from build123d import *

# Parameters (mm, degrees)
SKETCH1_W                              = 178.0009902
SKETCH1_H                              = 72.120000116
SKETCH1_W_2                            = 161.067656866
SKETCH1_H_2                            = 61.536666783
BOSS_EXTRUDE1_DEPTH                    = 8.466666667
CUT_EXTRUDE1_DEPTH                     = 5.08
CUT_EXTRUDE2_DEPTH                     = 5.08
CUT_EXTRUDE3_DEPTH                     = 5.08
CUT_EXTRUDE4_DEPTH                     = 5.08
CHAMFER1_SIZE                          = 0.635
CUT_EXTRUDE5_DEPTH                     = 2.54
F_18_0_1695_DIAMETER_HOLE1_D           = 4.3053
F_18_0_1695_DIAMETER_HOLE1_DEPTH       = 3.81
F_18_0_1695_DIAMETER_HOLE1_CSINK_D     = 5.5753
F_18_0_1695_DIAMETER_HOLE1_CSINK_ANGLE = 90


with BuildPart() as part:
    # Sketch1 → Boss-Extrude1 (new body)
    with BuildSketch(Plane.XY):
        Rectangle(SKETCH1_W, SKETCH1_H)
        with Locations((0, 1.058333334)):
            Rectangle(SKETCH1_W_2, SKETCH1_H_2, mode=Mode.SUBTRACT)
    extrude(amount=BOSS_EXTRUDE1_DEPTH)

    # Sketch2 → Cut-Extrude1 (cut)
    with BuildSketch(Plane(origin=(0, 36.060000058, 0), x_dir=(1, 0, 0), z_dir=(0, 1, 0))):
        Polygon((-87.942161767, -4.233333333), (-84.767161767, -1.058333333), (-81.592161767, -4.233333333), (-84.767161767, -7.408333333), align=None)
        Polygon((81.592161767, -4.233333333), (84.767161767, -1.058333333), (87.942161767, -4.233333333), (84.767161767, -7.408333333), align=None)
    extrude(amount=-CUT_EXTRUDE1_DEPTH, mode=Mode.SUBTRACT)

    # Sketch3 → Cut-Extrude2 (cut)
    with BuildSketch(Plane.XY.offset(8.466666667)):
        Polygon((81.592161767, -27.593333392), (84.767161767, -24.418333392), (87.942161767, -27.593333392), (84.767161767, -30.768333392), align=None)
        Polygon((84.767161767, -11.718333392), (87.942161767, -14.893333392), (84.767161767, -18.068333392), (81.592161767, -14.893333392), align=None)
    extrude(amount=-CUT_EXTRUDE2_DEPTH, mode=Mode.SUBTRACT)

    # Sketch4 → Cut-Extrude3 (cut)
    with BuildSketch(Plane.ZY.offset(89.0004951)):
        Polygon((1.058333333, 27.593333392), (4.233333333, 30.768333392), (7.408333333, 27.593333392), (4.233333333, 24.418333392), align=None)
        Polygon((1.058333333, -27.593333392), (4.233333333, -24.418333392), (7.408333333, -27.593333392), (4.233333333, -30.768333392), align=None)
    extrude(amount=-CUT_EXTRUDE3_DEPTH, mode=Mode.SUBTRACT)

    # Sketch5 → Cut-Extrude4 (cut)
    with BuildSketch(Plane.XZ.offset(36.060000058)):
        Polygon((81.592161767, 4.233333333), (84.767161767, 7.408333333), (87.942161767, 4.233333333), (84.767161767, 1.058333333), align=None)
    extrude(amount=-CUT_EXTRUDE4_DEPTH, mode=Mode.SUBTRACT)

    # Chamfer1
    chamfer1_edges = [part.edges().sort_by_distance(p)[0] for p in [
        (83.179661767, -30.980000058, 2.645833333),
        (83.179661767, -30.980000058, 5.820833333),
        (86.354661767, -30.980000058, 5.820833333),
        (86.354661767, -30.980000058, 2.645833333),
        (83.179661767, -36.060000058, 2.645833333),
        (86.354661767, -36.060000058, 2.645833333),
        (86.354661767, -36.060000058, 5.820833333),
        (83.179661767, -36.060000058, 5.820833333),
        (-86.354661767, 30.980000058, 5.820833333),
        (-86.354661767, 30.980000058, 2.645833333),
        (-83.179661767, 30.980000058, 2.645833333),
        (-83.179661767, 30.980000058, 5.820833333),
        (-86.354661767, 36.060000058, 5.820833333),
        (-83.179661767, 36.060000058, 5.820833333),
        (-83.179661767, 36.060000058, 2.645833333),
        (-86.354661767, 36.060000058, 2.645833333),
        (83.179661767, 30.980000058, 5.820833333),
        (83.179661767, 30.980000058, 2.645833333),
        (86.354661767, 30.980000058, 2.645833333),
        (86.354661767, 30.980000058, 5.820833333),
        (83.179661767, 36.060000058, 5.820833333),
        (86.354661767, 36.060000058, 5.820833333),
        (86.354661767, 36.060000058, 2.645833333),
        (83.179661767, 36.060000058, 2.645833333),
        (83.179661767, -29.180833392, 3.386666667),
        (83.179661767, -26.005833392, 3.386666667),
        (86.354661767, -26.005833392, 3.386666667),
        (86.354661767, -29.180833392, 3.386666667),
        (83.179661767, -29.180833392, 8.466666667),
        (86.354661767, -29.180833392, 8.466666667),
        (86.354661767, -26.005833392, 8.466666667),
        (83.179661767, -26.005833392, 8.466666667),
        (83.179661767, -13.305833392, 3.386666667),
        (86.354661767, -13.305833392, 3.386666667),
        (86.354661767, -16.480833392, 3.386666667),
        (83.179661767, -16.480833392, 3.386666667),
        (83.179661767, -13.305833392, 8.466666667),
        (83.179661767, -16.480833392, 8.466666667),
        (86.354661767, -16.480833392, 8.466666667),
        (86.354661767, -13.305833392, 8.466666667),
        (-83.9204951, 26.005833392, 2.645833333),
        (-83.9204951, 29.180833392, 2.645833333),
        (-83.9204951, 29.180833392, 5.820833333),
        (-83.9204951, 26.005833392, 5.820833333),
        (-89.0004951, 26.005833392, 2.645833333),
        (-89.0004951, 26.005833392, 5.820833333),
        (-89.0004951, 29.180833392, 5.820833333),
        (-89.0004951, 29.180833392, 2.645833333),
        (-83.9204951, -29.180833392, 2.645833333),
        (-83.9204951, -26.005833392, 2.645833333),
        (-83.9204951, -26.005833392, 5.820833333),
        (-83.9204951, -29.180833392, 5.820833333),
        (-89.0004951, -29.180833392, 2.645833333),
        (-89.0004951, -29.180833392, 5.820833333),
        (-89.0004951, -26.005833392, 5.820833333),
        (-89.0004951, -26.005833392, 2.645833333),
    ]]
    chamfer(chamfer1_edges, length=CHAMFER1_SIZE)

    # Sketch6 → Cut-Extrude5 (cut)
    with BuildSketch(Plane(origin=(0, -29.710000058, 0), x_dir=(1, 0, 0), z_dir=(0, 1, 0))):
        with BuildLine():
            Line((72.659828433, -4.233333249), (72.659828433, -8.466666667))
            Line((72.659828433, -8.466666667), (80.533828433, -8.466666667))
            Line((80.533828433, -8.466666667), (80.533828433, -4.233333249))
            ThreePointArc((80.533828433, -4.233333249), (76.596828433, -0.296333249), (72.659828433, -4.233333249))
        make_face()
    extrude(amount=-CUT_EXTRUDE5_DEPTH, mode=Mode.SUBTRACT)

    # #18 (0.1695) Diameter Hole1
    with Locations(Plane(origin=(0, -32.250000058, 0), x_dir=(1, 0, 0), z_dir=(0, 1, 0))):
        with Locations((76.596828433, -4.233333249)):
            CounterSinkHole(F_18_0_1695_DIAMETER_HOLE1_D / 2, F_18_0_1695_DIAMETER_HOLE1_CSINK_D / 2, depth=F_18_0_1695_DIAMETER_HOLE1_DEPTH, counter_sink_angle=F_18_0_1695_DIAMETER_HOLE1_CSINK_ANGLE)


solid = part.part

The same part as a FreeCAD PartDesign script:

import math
import FreeCAD as App
import Part
import Sketcher

V = App.Vector
Q = App.Units.Quantity


def edges_at(feature, points):
    """Names of the edges that pass closest to the given points."""
    edges = feature.Shape.Edges
    near = lambda p: min(range(len(edges)), key=lambda i: edges[i].distToShape(Part.Vertex(*p))[0])
    return sorted({f"Edge{near(p) + 1}" for p in points})


def add_polygon(sketch, points):
    """Adds a closed chain of lines whose ends are joined by coincident constraints."""
    first, n = sketch.GeometryCount, len(points)
    for a, b in zip(points, points[1:] + points[:1]):
        sketch.addGeometry(Part.LineSegment(App.Vector(*a, 0), App.Vector(*b, 0)), False)
    for i in range(n):
        sketch.addConstraint(Sketcher.Constraint("Coincident", first + i, 2, first + (i + 1) % n, 1))

doc = App.newDocument("Part")
params = doc.addObject("Spreadsheet::Sheet", "Params")
for row, (alias, value) in enumerate([
    ("pad1_length", "8.466667 mm"),
    ("pocket1_length", "0.2 in"),
    ("pocket2_length", "0.2 in"),
    ("pocket3_length", "0.2 in"),
    ("pocket4_length", "0.2 in"),
    ("chamfer_size", "0.025 in"),
    ("sketch6_radius", "0.155 in"),
    ("pocket5_length", "0.1 in"),
    ("hole_diameter", "0.1695 in"),
    ("hole_depth", "0.15 in"),
    ("hole_csink_diameter", "0.2195 in"),
], start=1):
    params.set(f"A{row}", alias)
    params.set(f"B{row}", "=" + value)
    params.setAlias(f"B{row}", alias)

body = doc.addObject("PartDesign::Body", "Body")

# Sketch on XY plane
sketch1 = body.newObject("Sketcher::SketchObject", "Sketch")
sketch1.AttachmentSupport = (doc.getObject("XY_Plane"), [""])
sketch1.MapMode = "FlatFace"
add_polygon(sketch1, [(-89, 36), (-89, -36), (89, -36), (89, 36)])  # lines 0-3
add_polygon(sketch1, [(81, -30), (-81, -30), (-81, 32), (81, 32)])  # lines 4-7
sketch1.addConstraint([
    Sketcher.Constraint("Vertical", 0),
    Sketcher.Constraint("Horizontal", 1),
    Sketcher.Constraint("Vertical", 2),
    Sketcher.Constraint("Horizontal", 3),
    Sketcher.Constraint("Horizontal", 4),
    Sketcher.Constraint("Vertical", 5),
    Sketcher.Constraint("Horizontal", 6),
    Sketcher.Constraint("Vertical", 7),
    Sketcher.Constraint("Symmetric", 0, 2, 2, 2, -1, 1),
    Sketcher.Constraint("DistanceY", 0, 2, 4, 2, Q("0.25 in")),
    Sketcher.Constraint("DistanceY", 0, 2, 0, 1, 72.12),
    Sketcher.Constraint("DistanceX", 1, 1, 1, 2, 178.00099),
    Sketcher.Constraint("DistanceX", 4, 2, 4, 1, 161.067657),
    Sketcher.Constraint("DistanceY", 5, 1, 5, 2, 61.536667),
    Sketcher.Constraint("DistanceX", 4, 2, -1, 1, 80.533828),
])
pad1 = body.newObject("PartDesign::Pad", "Pad")
pad1.Profile = sketch1
pad1.setExpression("Length", "Params.pad1_length")

# Sketch on XZ plane
sketch2 = body.newObject("Sketcher::SketchObject", "Sketch001")
sketch2.AttachmentSupport = (doc.getObject("XZ_Plane"), [""])
sketch2.MapMode = "FlatFace"
sketch2.AttachmentOffset = App.Placement(V(0, 0, -36.06), App.Rotation())
add_polygon(sketch2, [(-84.8, 1.1), (-87.9, 4.2), (-84.8, 7.4), (-81.6, 4.2)])  # lines 0-3
add_polygon(sketch2, [(84.8, 1.1), (81.6, 4.2), (84.8, 7.4), (87.9, 4.2)])  # lines 4-7
sketch2.addConstraint([
    Sketcher.Constraint("Symmetric", 2, 2, 4, 2, -2),
    Sketcher.Constraint("Symmetric", 1, 2, 5, 2, -2),
    Sketcher.Constraint("Symmetric", 0, 2, 6, 2, -2),
    Sketcher.Constraint("Symmetric", 3, 2, 7, 2, -2),
    Sketcher.Constraint("Perpendicular", 0, 1),
    Sketcher.Constraint("Perpendicular", 1, 2),
    Sketcher.Constraint("Perpendicular", 2, 3),
    Sketcher.Constraint("Perpendicular", 3, 4),
    Sketcher.Constraint("Horizontal", 0, 2, 2, 2),
    Sketcher.Constraint("DistanceX", 0, 2, 2, 2, Q("0.25 in")),
    Sketcher.Constraint("DistanceX", 0, 2, -1, 1, 87.942162),
    Sketcher.Constraint("DistanceY", -1, 1, 0, 2, 4.233333),
])
pocket1 = body.newObject("PartDesign::Pocket", "Pocket")
pocket1.Profile = sketch2
pocket1.setExpression("Length", "Params.pocket1_length")
pocket1.Reversed = True

# Sketch on XY plane
sketch3 = body.newObject("Sketcher::SketchObject", "Sketch002")
sketch3.AttachmentSupport = (doc.getObject("XY_Plane"), [""])
sketch3.MapMode = "FlatFace"
sketch3.AttachmentOffset = App.Placement(V(0, 0, 8.466667), App.Rotation())
add_polygon(sketch3, [(84.8, -24.4), (81.6, -27.6), (84.8, -30.8), (87.9, -27.6)])  # lines 0-3
add_polygon(sketch3, [(87.9, -14.9), (84.8, -11.7), (81.6, -14.9), (84.8, -18.1)])  # lines 4-7
sketch3.addConstraint([
    Sketcher.Constraint("Perpendicular", 0, 1),
    Sketcher.Constraint("Perpendicular", 1, 2),
    Sketcher.Constraint("Perpendicular", 2, 3),
    Sketcher.Constraint("Parallel", 3, 4),
    Sketcher.Constraint("Perpendicular", 4, 5),
    Sketcher.Constraint("Perpendicular", 5, 6),
    Sketcher.Constraint("Perpendicular", 6, 7),
    Sketcher.Constraint("Horizontal", 0, 2, 2, 2),
    Sketcher.Constraint("Horizontal", 5, 2, 7, 2),
    Sketcher.Constraint("Vertical", 1, 2, 3, 2),
    Sketcher.Constraint("Vertical", 3, 2, 4, 2),
    Sketcher.Constraint("Vertical", 0, 2, 5, 2),
    Sketcher.Constraint("DistanceY", 3, 2, 4, 2, Q("0.5 in")),
    Sketcher.Constraint("DistanceX", 0, 2, 2, 2, Q("0.25 in")),
    Sketcher.Constraint("DistanceX", -1, 1, 0, 2, 81.592162),
    Sketcher.Constraint("DistanceY", 0, 2, -1, 1, 27.593333),
])
pocket2 = body.newObject("PartDesign::Pocket", "Pocket001")
pocket2.Profile = sketch3
pocket2.setExpression("Length", "Params.pocket2_length")

# Sketch on YZ plane
sketch4 = body.newObject("Sketcher::SketchObject", "Sketch003")
sketch4.AttachmentSupport = (doc.getObject("YZ_Plane"), [""])
sketch4.MapMode = "FlatFace"
sketch4.AttachmentOffset = App.Placement(V(0, 0, -89.000495), App.Rotation())
add_polygon(sketch4, [(30.8, 4.2), (27.6, 1.1), (24.4, 4.2), (27.6, 7.4)])  # lines 0-3
add_polygon(sketch4, [(-24.4, 4.2), (-27.6, 1.1), (-30.8, 4.2), (-27.6, 7.4)])  # lines 4-7
sketch4.addConstraint([
    Sketcher.Constraint("Symmetric", 0, 2, 4, 2, -2),
    Sketcher.Constraint("Symmetric", 3, 2, 5, 2, -2),
    Sketcher.Constraint("Symmetric", 2, 2, 6, 2, -2),
    Sketcher.Constraint("Symmetric", 1, 2, 7, 2, -2),
    Sketcher.Constraint("Perpendicular", 0, 1),
    Sketcher.Constraint("Perpendicular", 1, 2),
    Sketcher.Constraint("Perpendicular", 2, 3),
    Sketcher.Constraint("Perpendicular", 3, 4),
    Sketcher.Constraint("Horizontal", 1, 2, 3, 2),
    Sketcher.Constraint("DistanceY", 0, 2, 2, 2, Q("0.25 in")),
    Sketcher.Constraint("DistanceX", -1, 1, 0, 2, 27.593333),
    Sketcher.Constraint("DistanceY", -1, 1, 0, 2, 1.058333),
])
pocket3 = body.newObject("PartDesign::Pocket", "Pocket002")
pocket3.Profile = sketch4
pocket3.setExpression("Length", "Params.pocket3_length")
pocket3.Reversed = True

# Sketch on XZ plane
sketch5 = body.newObject("Sketcher::SketchObject", "Sketch004")
sketch5.AttachmentSupport = (doc.getObject("XZ_Plane"), [""])
sketch5.MapMode = "FlatFace"
sketch5.AttachmentOffset = App.Placement(V(0, 0, 36.06), App.Rotation())
add_polygon(sketch5, [(84.8, 7.4), (81.6, 4.2), (84.8, 1.1), (87.9, 4.2)])  # lines 0-3
sketch5.addConstraint([
    Sketcher.Constraint("Perpendicular", 0, 1),
    Sketcher.Constraint("Perpendicular", 1, 2),
    Sketcher.Constraint("Perpendicular", 2, 3),
    Sketcher.Constraint("Horizontal", 0, 2, 2, 2),
    Sketcher.Constraint("Vertical", 1, 2, 3, 2),
    Sketcher.Constraint("DistanceX", 0, 2, 2, 2, Q("0.25 in")),
    Sketcher.Constraint("DistanceX", -1, 1, 0, 2, 81.592162),
    Sketcher.Constraint("DistanceY", -1, 1, 0, 2, 4.233333),
])
pocket4 = body.newObject("PartDesign::Pocket", "Pocket003")
pocket4.Profile = sketch5
pocket4.setExpression("Length", "Params.pocket4_length")
doc.recompute()

chamfer = body.newObject("PartDesign::Chamfer", "Chamfer")
chamfer.Base = (pocket4, edges_at(pocket4, [
    (83.18, -30.98, 2.646),
    (83.18, -30.98, 5.821),
    (86.355, -30.98, 5.821),
    (86.355, -30.98, 2.646),
    (83.18, -36.06, 2.646),
    (86.355, -36.06, 2.646),
    (86.355, -36.06, 5.821),
    (83.18, -36.06, 5.821),
    (-86.355, 30.98, 5.821),
    (-86.355, 30.98, 2.646),
    (-83.18, 30.98, 2.646),
    (-83.18, 30.98, 5.821),
    (-86.355, 36.06, 5.821),
    (-83.18, 36.06, 5.821),
    (-83.18, 36.06, 2.646),
    (-86.355, 36.06, 2.646),
    (83.18, 30.98, 5.821),
    (83.18, 30.98, 2.646),
    (86.355, 30.98, 2.646),
    (86.355, 30.98, 5.821),
    (83.18, 36.06, 5.821),
    (86.355, 36.06, 5.821),
    (86.355, 36.06, 2.646),
    (83.18, 36.06, 2.646),
    (83.18, -29.181, 3.387),
    (83.18, -26.006, 3.387),
    (86.355, -26.006, 3.387),
    (86.355, -29.181, 3.387),
    (83.18, -29.181, 8.467),
    (86.355, -29.181, 8.467),
    (86.355, -26.006, 8.467),
    (83.18, -26.006, 8.467),
    (83.18, -13.306, 3.387),
    (86.355, -13.306, 3.387),
    (86.355, -16.481, 3.387),
    (83.18, -16.481, 3.387),
    (83.18, -13.306, 8.467),
    (83.18, -16.481, 8.467),
    (86.355, -16.481, 8.467),
    (86.355, -13.306, 8.467),
    (-83.92, 26.006, 2.646),
    (-83.92, 29.181, 2.646),
    (-83.92, 29.181, 5.821),
    (-83.92, 26.006, 5.821),
    (-89, 26.006, 2.646),
    (-89, 26.006, 5.821),
    (-89, 29.181, 5.821),
    (-89, 29.181, 2.646),
    (-83.92, -29.181, 2.646),
    (-83.92, -26.006, 2.646),
    (-83.92, -26.006, 5.821),
    (-83.92, -29.181, 5.821),
    (-89, -29.181, 2.646),
    (-89, -29.181, 5.821),
    (-89, -26.006, 5.821),
    (-89, -26.006, 2.646),
]))
chamfer.setExpression("Size", "Params.chamfer_size")

# Sketch on XZ plane
sketch6 = body.newObject("Sketcher::SketchObject", "Sketch005")
sketch6.AttachmentSupport = (doc.getObject("XZ_Plane"), [""])
sketch6.MapMode = "FlatFace"
sketch6.AttachmentOffset = App.Placement(V(0, 0, 29.71), App.Rotation())
sketch6.addGeometry([
    Part.LineSegment(V(72.7, 4.2, 0), V(72.7, 8.5, 0)),
    Part.LineSegment(V(72.7, 8.5, 0), V(80.5, 8.5, 0)),
    Part.LineSegment(V(80.5, 8.5, 0), V(80.5, 4.2, 0)),
    Part.ArcOfCircle(Part.Circle(V(76.6, 4.2, 0), V(0, 0, 1), 3.9), math.radians(180), math.radians(360)),
], False)
sketch6.addConstraint([
    Sketcher.Constraint("Coincident", 0, 2, 1, 1),
    Sketcher.Constraint("Coincident", 1, 2, 2, 1),
    Sketcher.Constraint("Tangent", 2, 2, 3, 2),
    Sketcher.Constraint("Tangent", 3, 1, 0, 1),
    Sketcher.Constraint("Vertical", 0),
    Sketcher.Constraint("Horizontal", 1),
    Sketcher.Constraint("Vertical", 2),
    Sketcher.Constraint("Radius", 3, Q("0.155 in")),
    Sketcher.Constraint("DistanceY", 0, 1, 0, 2, 4.233333),
    Sketcher.Constraint("DistanceX", -1, 1, 3, 3, 76.596828),
    Sketcher.Constraint("DistanceY", -1, 1, 3, 3, 4.233333),
])
sketch6.setExpression("Constraints[7]", "Params.sketch6_radius")
pocket5 = body.newObject("PartDesign::Pocket", "Pocket004")
pocket5.Profile = sketch6
pocket5.setExpression("Length", "Params.pocket5_length")
pocket5.Reversed = True

# Sketch on XZ plane
sketch7 = body.newObject("Sketcher::SketchObject", "Sketch006")
sketch7.AttachmentSupport = (doc.getObject("XZ_Plane"), [""])
sketch7.MapMode = "FlatFace"
sketch7.AttachmentOffset = App.Placement(V(0, 0, 32.25), App.Rotation())
sketch7.addGeometry(Part.Circle(V(76.6, 4.2, 0), V(0, 0, 1), 2.2), False)
sketch7.addConstraint([
    Sketcher.Constraint("Diameter", 0, Q("0.1695 in")),
    Sketcher.Constraint("DistanceX", -1, 1, 0, 3, 76.596828),
    Sketcher.Constraint("DistanceY", -1, 1, 0, 3, 4.233333),
])
doc.recompute()
hole = body.newObject("PartDesign::Hole", "Hole")
hole.Profile = sketch7
hole.ThreadType = "None"
hole.setExpression("Diameter", "Params.hole_diameter")
hole.DepthType = "Dimension"
hole.setExpression("Depth", "Params.hole_depth")
hole.DrillPoint = "Flat"
hole.HoleCutType = "Countersink"
hole.setExpression("HoleCutDiameter", "Params.hole_csink_diameter")
hole.HoleCutCountersinkAngle = 90
hole.Reversed = True

doc.recompute()
